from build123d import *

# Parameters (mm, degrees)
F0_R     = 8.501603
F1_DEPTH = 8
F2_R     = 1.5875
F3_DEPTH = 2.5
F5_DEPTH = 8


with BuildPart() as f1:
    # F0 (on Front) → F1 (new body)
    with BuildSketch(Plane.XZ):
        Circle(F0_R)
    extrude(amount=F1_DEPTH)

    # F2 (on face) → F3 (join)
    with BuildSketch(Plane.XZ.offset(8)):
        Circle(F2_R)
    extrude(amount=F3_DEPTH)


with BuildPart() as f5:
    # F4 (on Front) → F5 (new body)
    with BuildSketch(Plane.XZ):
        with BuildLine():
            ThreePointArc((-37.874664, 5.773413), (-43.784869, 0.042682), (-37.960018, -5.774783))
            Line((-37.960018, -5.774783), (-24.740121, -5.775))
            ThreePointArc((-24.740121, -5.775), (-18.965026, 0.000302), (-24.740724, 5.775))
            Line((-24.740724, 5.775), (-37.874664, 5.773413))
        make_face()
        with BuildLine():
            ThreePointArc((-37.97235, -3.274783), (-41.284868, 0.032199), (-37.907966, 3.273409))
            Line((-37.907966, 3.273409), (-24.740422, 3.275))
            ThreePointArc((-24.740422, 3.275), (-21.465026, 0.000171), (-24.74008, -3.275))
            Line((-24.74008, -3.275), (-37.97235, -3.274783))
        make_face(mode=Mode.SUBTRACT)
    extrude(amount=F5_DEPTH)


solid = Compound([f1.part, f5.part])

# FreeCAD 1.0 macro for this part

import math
import FreeCAD as App
import Part
import Sketcher
Q = App.Units.Quantity

doc = App.newDocument("Part")
body = doc.addObject("PartDesign::Body", "Body")

# Sketch on XZ plane
sketch1 = doc.addObject("Sketcher::SketchObject", "Sketch")
body.addObject(sketch1)
sketch1.AttachmentSupport = (doc.XZ_Plane, [""])
sketch1.MapMode = "FlatFace"
sketch1.addGeometry(Part.Circle(App.Vector(0, 0, 0), App.Vector(0, 0, 1), 8.501603), False)
sketch1.addConstraint([
    Sketcher.Constraint("Coincident", 0, 3, -1, 1),
    Sketcher.Constraint("Diameter", 0, Q("17.003206 mm")),
])
pad1 = doc.addObject("PartDesign::Pad", "Pad")
body.addObject(pad1)
pad1.Profile = sketch1
pad1.Length = 8

# Sketch on XZ plane
sketch2 = doc.addObject("Sketcher::SketchObject", "Sketch001")
body.addObject(sketch2)
sketch2.AttachmentSupport = (doc.XZ_Plane, [""])
sketch2.MapMode = "FlatFace"
sketch2.AttachmentOffset = App.Placement(App.Vector(0, 0, 8), App.Rotation())
sketch2.addGeometry(Part.Circle(App.Vector(0, 0, 0), App.Vector(0, 0, 1), 1.5875), False)
sketch2.addConstraint([
    Sketcher.Constraint("Coincident", 0, 3, -1, 1),
    Sketcher.Constraint("Diameter", 0, Q("3.175 mm")),
])
pad2 = doc.addObject("PartDesign::Pad", "Pad001")
body.addObject(pad2)
pad2.Profile = sketch2
pad2.Length = 2.5
body2 = doc.addObject("PartDesign::Body", "Body001")

# Sketch on XZ plane
sketch3 = doc.addObject("Sketcher::SketchObject", "Sketch002")
body2.addObject(sketch3)
sketch3.AttachmentSupport = (doc.getObject("XZ_Plane001"), [""])
sketch3.MapMode = "FlatFace"
sketch3.addGeometry([
    Part.ArcOfCircle(Part.Circle(App.Vector(-38.010027, 0, 0), App.Vector(0, 0, 1), 5.775), math.radians(88.656892), math.radians(270.496164)),  # 0
    Part.LineSegment(App.Vector(-37.960018, -5.774783, 0), App.Vector(-24.740121, -5.775, 0)),  # 1
    Part.ArcOfCircle(Part.Circle(App.Vector(-24.740026, 0, 0), App.Vector(0, 0, 1), 5.775), math.radians(-90.000942), math.radians(90.006925)),  # 2
    Part.LineSegment(App.Vector(-24.740724, 5.775, 0), App.Vector(-37.874664, 5.773413, 0)),  # 3
    Part.LineSegment(App.Vector(-24.74008, -3.275, 0), App.Vector(-37.97235, -3.274783, 0)),  # 4
    Part.ArcOfCircle(Part.Circle(App.Vector(-38.010027, 0, 0), App.Vector(0, 0, 1), 3.275), math.radians(88.214171), math.radians(270.659163)),  # 5
    Part.LineSegment(App.Vector(-37.907966, 3.273409, 0), App.Vector(-24.740422, 3.275, 0)),  # 6
    Part.ArcOfCircle(Part.Circle(App.Vector(-24.740026, 0, 0), App.Vector(0, 0, 1), 3.275), math.radians(-90.000945), math.radians(90.006928)),  # 7
], False)
sketch3.addConstraint([
    Sketcher.Constraint("Coincident", 0, 2, 1, 1),
    Sketcher.Constraint("Tangent", 1, 2, 2, 1),
    Sketcher.Constraint("Tangent", 2, 2, 3, 1),
    Sketcher.Constraint("Coincident", 3, 2, 0, 1),
    Sketcher.Constraint("Coincident", 4, 2, 5, 2),
    Sketcher.Constraint("Coincident", 5, 1, 6, 1),
    Sketcher.Constraint("Tangent", 6, 2, 7, 2),
    Sketcher.Constraint("Tangent", 7, 1, 4, 1),
    Sketcher.Constraint("Coincident", 5, 3, 0, 3),
    Sketcher.Constraint("Coincident", 7, 3, 2, 3),
    Sketcher.Constraint("Equal", 0, 2),
    Sketcher.Constraint("Equal", 5, 7),
    Sketcher.Constraint("PointOnObject", 0, 3, -1),
    Sketcher.Constraint("PointOnObject", 2, 3, -1),
    Sketcher.Constraint("Parallel", 1, 4),
    Sketcher.Constraint("Parallel", 3, 6),
    Sketcher.Constraint("Radius", 0, Q("5.775 mm")),
    Sketcher.Constraint("Radius", 5, Q("3.275 mm")),
    Sketcher.Constraint("DistanceX", 0, 3, 2, 3, Q("13.270001 mm")),
    Sketcher.Constraint("DistanceX", 6, 2, 1, 2, Q("0.000301 mm")),
    Sketcher.Constraint("Distance", 3, Q("13.13394 mm")),
    Sketcher.Constraint("DistanceX", 0, 2, -1, 1, Q("37.960018 mm")),
])
pad3 = doc.addObject("PartDesign::Pad", "Pad002")
body2.addObject(pad3)
pad3.Profile = sketch3
pad3.Length = 8

doc.recompute()
